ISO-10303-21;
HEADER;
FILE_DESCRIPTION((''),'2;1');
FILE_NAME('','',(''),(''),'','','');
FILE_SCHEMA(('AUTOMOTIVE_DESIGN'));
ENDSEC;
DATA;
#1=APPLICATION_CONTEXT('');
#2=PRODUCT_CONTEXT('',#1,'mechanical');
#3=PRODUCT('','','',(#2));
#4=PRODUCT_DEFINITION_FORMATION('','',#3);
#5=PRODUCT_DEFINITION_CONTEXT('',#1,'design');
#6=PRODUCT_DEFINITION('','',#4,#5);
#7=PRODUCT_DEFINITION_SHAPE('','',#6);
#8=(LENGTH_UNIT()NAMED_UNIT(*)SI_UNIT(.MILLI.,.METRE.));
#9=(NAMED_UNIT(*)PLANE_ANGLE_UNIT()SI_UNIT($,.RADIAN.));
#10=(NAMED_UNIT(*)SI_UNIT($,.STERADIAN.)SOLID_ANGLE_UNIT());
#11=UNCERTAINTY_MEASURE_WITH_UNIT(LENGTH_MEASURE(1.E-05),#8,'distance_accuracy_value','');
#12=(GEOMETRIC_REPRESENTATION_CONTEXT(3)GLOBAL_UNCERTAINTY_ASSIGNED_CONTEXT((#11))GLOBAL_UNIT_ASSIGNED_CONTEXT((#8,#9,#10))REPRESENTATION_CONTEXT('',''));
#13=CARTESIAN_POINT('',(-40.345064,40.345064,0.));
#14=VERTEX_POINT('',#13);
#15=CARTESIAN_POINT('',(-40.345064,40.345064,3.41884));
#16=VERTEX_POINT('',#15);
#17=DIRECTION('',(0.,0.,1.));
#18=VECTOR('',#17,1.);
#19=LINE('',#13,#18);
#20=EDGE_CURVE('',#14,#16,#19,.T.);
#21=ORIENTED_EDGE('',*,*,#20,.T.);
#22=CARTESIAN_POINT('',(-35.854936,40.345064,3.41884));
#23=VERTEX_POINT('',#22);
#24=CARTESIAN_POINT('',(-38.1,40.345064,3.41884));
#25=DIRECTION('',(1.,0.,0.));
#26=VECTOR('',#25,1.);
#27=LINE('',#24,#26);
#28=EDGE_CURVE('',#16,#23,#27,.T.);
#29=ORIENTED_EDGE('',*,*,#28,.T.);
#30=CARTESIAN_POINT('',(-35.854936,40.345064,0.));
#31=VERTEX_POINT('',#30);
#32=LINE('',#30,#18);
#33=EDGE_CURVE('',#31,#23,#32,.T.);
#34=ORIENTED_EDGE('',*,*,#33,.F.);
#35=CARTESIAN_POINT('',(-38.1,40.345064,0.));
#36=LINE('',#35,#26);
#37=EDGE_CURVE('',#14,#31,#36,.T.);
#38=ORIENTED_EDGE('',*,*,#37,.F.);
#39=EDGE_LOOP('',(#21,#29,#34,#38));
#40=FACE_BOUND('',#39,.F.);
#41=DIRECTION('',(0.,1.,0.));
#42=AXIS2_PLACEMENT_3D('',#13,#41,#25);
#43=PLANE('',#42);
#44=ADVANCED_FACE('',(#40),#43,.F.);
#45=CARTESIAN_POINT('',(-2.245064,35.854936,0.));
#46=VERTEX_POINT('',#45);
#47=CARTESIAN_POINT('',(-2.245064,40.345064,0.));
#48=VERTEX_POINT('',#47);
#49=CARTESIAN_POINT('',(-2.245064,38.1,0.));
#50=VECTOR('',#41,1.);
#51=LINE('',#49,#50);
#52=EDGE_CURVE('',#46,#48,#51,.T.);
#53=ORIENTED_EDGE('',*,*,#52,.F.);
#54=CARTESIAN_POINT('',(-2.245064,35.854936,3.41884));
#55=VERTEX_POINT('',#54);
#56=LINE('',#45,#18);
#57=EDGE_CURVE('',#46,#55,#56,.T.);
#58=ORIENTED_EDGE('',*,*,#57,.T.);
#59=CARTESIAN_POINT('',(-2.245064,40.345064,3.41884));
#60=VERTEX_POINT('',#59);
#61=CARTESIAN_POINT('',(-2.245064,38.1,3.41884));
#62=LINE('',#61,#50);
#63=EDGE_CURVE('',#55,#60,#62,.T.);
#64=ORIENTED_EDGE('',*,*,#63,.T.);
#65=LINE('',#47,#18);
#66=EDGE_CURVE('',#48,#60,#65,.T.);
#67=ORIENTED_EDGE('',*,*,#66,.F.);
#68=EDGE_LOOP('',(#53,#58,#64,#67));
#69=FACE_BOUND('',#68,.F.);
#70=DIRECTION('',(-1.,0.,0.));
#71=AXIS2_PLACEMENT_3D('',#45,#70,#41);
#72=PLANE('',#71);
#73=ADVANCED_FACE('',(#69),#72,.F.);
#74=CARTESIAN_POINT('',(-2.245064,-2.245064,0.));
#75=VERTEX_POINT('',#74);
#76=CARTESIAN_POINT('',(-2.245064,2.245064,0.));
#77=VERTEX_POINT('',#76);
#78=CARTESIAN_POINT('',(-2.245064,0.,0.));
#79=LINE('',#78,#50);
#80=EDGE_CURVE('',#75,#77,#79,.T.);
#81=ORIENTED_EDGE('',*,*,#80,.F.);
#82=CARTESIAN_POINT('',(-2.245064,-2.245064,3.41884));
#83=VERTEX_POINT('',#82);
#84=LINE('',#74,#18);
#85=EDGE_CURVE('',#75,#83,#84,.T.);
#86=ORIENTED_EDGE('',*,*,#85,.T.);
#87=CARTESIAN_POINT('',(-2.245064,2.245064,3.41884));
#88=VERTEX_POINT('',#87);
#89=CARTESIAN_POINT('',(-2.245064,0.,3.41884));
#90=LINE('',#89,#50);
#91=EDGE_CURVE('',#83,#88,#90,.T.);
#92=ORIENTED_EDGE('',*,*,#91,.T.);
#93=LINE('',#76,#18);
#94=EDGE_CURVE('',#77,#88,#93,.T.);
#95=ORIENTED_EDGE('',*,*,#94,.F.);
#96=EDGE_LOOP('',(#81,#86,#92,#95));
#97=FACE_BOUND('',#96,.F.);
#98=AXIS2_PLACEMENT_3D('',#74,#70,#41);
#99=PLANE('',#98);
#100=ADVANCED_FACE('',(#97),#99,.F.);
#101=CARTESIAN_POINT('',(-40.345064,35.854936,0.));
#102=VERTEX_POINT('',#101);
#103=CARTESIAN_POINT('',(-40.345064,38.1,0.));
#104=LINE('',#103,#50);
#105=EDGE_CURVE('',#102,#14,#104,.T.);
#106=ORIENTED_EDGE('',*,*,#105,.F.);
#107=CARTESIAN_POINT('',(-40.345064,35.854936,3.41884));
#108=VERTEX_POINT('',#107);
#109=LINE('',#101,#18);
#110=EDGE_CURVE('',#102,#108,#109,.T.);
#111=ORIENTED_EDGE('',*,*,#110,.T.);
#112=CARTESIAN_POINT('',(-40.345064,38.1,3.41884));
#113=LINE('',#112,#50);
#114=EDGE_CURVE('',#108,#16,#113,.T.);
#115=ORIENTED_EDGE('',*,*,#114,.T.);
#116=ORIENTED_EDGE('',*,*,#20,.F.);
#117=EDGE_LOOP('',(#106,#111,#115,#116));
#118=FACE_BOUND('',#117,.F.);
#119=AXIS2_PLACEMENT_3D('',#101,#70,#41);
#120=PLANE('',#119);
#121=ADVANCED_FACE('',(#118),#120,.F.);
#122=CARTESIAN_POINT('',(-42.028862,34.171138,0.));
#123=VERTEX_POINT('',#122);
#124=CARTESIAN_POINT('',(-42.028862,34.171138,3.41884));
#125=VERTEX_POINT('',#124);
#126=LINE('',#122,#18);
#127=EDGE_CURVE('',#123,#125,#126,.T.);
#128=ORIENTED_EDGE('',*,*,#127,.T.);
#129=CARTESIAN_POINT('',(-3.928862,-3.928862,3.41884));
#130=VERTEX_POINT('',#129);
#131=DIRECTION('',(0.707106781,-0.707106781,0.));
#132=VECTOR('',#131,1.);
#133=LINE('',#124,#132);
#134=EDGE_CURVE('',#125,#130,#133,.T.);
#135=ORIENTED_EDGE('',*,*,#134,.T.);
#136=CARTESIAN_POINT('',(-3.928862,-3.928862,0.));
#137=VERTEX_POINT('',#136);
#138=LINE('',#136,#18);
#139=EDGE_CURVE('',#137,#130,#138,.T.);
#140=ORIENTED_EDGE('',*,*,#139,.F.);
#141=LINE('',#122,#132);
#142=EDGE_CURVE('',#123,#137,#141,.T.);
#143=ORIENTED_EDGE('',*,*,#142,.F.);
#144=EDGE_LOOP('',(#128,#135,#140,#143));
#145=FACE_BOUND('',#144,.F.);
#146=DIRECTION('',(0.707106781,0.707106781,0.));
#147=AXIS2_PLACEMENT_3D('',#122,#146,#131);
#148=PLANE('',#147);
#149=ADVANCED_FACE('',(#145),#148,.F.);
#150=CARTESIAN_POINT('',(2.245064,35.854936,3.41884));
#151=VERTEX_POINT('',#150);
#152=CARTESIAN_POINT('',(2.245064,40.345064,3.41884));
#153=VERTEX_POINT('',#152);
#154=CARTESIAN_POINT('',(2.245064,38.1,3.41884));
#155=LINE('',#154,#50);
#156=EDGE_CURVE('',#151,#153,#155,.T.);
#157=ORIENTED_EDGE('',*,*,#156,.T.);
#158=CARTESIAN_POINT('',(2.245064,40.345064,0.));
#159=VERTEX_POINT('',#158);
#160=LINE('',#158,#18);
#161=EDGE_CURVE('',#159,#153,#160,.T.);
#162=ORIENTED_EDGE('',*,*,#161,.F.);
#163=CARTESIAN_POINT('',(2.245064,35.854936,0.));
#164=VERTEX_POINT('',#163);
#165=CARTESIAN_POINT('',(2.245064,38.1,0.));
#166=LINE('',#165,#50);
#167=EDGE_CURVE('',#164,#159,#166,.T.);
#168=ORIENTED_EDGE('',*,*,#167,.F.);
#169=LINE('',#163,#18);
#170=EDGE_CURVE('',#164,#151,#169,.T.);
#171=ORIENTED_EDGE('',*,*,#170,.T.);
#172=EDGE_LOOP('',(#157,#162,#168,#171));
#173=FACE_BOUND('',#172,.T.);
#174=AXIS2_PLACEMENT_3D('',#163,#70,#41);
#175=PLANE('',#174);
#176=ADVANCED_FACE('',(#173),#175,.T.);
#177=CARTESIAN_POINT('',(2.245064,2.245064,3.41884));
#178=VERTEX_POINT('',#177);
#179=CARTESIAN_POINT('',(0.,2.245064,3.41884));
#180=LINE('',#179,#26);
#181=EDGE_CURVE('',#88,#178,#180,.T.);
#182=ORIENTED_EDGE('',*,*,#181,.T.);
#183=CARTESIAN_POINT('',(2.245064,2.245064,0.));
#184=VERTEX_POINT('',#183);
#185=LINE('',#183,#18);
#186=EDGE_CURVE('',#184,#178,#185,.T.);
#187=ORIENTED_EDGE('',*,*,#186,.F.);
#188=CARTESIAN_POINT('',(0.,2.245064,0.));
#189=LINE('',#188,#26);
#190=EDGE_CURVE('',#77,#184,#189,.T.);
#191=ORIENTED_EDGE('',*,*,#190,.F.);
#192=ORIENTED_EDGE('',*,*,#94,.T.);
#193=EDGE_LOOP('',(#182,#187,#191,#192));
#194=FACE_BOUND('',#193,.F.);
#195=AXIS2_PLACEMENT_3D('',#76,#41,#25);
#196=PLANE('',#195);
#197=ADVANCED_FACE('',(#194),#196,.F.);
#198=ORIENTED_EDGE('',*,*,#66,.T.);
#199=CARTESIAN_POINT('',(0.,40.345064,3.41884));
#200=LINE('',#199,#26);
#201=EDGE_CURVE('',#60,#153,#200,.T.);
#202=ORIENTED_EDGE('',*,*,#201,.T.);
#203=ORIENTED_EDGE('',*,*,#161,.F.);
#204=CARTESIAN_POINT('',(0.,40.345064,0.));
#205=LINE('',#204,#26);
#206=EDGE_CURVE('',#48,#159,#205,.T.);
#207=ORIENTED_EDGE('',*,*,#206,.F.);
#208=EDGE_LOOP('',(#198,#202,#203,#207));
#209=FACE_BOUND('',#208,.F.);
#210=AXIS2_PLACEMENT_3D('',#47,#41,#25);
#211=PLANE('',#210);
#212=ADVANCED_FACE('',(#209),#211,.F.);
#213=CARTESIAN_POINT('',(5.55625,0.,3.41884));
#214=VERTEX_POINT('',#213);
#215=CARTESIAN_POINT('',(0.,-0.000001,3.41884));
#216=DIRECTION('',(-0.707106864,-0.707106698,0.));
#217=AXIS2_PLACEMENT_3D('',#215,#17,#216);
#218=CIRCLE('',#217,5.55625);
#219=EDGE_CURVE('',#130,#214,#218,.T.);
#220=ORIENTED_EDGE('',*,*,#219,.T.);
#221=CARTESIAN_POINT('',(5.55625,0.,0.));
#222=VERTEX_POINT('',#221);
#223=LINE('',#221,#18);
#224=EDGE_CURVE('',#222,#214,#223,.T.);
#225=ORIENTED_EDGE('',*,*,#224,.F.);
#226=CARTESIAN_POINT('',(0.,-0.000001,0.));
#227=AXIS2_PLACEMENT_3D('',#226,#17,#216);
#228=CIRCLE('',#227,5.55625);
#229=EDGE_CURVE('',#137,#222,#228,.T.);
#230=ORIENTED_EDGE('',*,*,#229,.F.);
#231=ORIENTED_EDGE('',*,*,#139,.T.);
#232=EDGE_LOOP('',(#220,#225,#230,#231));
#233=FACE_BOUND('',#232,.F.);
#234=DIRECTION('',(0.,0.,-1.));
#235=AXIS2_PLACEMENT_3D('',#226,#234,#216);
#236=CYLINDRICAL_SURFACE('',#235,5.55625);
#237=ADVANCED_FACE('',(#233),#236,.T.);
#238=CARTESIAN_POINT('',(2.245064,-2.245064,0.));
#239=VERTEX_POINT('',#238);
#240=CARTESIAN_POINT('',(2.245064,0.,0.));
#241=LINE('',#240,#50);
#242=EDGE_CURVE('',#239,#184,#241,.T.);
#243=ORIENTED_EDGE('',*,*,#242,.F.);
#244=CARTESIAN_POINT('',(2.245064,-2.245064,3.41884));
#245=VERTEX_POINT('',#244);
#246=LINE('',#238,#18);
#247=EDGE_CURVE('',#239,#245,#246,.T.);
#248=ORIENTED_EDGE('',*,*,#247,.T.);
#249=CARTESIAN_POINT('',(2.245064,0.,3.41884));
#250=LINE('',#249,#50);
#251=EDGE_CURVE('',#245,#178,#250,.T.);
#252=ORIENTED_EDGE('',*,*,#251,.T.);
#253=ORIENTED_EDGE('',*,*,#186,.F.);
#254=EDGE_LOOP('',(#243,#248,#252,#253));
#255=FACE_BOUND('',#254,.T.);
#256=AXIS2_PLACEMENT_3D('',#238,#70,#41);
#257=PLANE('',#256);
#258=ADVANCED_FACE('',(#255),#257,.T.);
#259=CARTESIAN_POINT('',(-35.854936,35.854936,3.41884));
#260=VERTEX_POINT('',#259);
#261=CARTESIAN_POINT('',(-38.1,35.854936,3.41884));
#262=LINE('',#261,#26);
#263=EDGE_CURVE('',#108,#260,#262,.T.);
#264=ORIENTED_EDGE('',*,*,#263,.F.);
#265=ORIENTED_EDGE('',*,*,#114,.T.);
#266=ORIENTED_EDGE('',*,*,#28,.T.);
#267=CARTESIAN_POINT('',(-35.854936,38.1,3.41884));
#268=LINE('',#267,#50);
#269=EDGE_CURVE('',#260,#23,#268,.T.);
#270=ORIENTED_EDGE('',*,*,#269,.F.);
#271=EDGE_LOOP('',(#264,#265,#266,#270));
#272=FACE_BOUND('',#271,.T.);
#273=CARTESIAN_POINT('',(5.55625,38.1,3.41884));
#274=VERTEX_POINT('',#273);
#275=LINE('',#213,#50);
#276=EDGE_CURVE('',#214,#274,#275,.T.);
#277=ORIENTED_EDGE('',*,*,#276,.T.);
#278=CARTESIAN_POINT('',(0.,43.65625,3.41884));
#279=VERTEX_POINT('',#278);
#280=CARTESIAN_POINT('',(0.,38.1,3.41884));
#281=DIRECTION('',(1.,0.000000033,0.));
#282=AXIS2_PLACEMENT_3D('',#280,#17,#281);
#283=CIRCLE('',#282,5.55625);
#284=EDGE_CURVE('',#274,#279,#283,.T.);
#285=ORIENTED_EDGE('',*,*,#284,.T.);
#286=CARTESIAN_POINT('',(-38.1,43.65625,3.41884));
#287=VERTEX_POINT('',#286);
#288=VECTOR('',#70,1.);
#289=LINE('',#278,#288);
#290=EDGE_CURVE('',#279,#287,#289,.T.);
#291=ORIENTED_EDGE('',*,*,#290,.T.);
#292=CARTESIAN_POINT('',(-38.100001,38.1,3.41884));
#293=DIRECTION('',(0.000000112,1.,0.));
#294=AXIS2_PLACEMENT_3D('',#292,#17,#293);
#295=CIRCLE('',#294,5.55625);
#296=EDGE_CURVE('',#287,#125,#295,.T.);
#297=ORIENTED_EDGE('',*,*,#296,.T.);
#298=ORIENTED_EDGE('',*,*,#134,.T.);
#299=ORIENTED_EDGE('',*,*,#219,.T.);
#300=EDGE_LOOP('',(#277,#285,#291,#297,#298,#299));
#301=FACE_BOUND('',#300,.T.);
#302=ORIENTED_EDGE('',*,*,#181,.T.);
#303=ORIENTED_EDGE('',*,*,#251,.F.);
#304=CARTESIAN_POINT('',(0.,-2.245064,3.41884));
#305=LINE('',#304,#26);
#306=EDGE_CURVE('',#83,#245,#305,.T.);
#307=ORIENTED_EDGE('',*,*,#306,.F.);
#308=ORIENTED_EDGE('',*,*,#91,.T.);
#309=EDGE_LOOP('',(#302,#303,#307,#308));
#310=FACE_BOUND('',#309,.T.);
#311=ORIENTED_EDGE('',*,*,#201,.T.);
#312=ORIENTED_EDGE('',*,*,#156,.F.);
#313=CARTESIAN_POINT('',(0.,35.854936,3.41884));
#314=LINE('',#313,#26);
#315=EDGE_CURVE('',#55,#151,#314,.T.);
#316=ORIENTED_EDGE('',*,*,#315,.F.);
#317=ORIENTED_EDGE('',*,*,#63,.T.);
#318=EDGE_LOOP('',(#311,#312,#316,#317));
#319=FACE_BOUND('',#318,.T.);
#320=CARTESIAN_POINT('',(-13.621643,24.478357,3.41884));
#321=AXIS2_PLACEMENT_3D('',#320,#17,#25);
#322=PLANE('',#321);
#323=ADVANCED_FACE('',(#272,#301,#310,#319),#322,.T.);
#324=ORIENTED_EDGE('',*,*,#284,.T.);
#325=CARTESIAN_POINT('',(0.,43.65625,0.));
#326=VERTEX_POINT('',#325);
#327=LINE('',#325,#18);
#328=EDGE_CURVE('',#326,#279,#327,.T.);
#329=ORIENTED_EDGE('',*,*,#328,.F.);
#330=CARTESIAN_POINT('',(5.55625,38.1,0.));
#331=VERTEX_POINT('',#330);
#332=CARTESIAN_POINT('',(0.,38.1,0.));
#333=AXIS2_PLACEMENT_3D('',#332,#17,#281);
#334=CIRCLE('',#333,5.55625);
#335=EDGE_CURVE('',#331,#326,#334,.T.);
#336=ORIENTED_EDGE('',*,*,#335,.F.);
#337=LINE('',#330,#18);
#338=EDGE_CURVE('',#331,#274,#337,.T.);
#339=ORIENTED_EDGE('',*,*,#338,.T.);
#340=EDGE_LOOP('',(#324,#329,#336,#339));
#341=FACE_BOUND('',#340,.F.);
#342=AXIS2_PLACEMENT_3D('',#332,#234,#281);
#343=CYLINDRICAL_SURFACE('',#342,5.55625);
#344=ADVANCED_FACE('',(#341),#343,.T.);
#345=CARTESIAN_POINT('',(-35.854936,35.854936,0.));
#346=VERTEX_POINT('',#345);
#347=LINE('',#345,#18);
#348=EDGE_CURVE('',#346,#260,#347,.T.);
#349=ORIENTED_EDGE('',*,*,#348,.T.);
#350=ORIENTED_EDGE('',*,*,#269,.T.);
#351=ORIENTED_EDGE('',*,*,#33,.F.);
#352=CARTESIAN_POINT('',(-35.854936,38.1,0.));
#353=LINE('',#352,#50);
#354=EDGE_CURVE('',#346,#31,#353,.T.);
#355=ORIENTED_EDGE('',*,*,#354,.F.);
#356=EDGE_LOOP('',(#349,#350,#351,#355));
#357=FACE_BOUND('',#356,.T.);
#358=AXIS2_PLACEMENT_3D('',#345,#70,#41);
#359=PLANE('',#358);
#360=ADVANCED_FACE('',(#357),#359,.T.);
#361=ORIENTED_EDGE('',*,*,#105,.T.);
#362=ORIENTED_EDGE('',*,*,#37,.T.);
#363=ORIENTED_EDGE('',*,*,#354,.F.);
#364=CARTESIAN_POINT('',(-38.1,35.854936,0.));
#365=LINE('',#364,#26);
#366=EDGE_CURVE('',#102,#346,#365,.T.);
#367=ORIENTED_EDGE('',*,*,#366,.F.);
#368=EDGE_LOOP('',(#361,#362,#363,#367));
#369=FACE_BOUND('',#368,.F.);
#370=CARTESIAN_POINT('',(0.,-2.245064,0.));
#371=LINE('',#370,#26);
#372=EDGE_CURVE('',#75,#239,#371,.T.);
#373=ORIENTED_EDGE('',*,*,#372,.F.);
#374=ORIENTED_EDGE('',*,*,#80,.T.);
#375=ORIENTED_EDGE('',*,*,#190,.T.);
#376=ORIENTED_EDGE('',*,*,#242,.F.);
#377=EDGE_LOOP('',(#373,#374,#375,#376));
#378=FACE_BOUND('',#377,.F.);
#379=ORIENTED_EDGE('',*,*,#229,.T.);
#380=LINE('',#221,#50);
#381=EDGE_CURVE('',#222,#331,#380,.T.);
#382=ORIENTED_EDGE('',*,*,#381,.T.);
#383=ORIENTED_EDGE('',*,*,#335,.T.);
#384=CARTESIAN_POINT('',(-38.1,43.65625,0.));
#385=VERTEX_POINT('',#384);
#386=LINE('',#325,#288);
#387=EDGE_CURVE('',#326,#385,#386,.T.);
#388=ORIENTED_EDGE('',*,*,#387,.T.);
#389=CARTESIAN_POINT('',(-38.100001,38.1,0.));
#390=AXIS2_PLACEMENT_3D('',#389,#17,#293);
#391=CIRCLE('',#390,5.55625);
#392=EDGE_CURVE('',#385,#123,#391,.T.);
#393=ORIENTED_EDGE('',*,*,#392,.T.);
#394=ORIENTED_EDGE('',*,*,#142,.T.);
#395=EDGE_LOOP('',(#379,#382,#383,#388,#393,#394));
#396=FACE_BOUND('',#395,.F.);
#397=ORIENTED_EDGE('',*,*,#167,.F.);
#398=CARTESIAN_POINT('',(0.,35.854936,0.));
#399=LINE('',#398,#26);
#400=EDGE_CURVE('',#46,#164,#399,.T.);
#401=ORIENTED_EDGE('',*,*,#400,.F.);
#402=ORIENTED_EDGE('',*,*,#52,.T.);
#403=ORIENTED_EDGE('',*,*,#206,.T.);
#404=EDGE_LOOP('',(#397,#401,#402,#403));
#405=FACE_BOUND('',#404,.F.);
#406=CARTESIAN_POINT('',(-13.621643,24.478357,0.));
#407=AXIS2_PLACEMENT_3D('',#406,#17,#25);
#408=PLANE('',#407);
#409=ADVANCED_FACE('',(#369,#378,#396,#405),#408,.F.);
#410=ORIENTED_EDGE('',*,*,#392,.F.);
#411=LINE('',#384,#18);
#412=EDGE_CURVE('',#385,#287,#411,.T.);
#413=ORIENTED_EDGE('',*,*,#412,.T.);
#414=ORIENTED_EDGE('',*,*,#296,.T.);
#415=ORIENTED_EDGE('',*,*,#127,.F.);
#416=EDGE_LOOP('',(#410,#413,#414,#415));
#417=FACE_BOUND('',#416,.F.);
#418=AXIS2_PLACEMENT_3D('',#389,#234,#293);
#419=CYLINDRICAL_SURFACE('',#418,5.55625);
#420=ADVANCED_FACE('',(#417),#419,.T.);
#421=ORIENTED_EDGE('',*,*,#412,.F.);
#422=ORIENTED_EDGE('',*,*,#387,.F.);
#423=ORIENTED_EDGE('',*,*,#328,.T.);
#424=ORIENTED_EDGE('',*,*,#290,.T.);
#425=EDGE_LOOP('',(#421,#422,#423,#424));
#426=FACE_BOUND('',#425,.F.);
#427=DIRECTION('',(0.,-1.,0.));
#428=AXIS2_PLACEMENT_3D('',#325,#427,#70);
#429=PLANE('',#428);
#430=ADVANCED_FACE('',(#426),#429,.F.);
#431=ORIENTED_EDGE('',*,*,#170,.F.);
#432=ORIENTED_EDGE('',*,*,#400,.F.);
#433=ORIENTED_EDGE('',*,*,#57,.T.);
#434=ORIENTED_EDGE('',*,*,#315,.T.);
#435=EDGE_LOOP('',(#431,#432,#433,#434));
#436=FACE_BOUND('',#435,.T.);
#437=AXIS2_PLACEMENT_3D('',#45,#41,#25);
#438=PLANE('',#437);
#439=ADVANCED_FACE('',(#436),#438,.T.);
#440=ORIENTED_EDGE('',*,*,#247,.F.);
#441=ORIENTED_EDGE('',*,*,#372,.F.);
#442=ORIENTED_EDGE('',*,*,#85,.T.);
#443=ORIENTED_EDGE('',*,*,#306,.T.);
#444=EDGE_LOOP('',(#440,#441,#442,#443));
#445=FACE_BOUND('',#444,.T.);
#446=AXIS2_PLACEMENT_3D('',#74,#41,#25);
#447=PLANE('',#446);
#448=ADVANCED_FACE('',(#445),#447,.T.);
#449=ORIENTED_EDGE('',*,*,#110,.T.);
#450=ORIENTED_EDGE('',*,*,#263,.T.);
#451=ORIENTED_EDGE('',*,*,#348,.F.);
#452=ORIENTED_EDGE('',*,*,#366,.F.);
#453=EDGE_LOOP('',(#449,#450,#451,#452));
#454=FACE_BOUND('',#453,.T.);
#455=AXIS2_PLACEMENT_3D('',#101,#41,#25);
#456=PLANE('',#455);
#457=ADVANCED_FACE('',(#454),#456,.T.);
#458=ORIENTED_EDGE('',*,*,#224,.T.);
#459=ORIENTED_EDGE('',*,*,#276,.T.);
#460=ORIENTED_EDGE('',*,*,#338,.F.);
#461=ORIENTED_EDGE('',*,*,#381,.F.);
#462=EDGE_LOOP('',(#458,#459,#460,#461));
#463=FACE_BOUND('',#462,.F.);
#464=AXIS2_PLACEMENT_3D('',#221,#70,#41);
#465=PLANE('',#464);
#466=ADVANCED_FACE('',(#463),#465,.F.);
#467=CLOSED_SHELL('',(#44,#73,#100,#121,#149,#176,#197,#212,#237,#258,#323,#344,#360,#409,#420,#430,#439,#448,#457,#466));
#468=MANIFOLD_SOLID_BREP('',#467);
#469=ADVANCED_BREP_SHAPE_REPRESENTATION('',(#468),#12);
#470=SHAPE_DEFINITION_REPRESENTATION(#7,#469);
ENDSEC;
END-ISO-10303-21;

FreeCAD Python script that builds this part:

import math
import FreeCAD as App
import Part
import Sketcher
Q = App.Units.Quantity

doc = App.newDocument("Part")
body = doc.addObject("PartDesign::Body", "Body")

# Sketch on XY plane
sketch1 = body.newObject("Sketcher::SketchObject", "Sketch")
sketch1.AttachmentSupport = (doc.getObject("XY_Plane"), [""])
sketch1.MapMode = "FlatFace"
sketch1.addGeometry([
    Part.LineSegment(App.Vector(5.6, 0, 0), App.Vector(5.6, 38.1, 0)),  # 0
    Part.ArcOfCircle(Part.Circle(App.Vector(0, 38.1, 0), App.Vector(0, 0, 1), 5.6), math.radians(0), math.radians(90)),  # 1
    Part.LineSegment(App.Vector(0, 43.7, 0), App.Vector(-38.1, 43.7, 0)),  # 2
    Part.ArcOfCircle(Part.Circle(App.Vector(-38.1, 38.1, 0), App.Vector(0, 0, 1), 5.6), math.radians(90), math.radians(225)),  # 3
    Part.LineSegment(App.Vector(-42, 34.2, 0), App.Vector(-3.9, -3.9, 0)),  # 4
    Part.ArcOfCircle(Part.Circle(App.Vector(0, 0, 0), App.Vector(0, 0, 1), 5.6), math.radians(-135), math.radians(0)),  # 5
    Part.LineSegment(App.Vector(2.2, -2.2, 0), App.Vector(-2.2, -2.2, 0)),  # 6
    Part.LineSegment(App.Vector(-2.2, -2.2, 0), App.Vector(-2.2, 2.2, 0)),  # 7
    Part.LineSegment(App.Vector(-2.2, 2.2, 0), App.Vector(2.2, 2.2, 0)),  # 8
    Part.LineSegment(App.Vector(2.2, 2.2, 0), App.Vector(2.2, -2.2, 0)),  # 9
    Part.LineSegment(App.Vector(-35.9, 35.9, 0), App.Vector(-40.3, 35.9, 0)),  # 10
    Part.LineSegment(App.Vector(-40.3, 35.9, 0), App.Vector(-40.3, 40.3, 0)),  # 11
    Part.LineSegment(App.Vector(-40.3, 40.3, 0), App.Vector(-35.9, 40.3, 0)),  # 12
    Part.LineSegment(App.Vector(-35.9, 40.3, 0), App.Vector(-35.9, 35.9, 0)),  # 13
    Part.LineSegment(App.Vector(2.2, 35.9, 0), App.Vector(-2.2, 35.9, 0)),  # 14
    Part.LineSegment(App.Vector(-2.2, 35.9, 0), App.Vector(-2.2, 40.3, 0)),  # 15
    Part.LineSegment(App.Vector(-2.2, 40.3, 0), App.Vector(2.2, 40.3, 0)),  # 16
    Part.LineSegment(App.Vector(2.2, 40.3, 0), App.Vector(2.2, 35.9, 0)),  # 17
], False)
sketch1.addConstraint([
    Sketcher.Constraint("Tangent", 0, 2, 1, 1),
    Sketcher.Constraint("Tangent", 1, 2, 2, 1),
    Sketcher.Constraint("Tangent", 2, 2, 3, 1),
    Sketcher.Constraint("Tangent", 3, 2, 4, 1),
    Sketcher.Constraint("Tangent", 4, 2, 5, 1),
    Sketcher.Constraint("Tangent", 5, 2, 0, 1),
    Sketcher.Constraint("Coincident", 6, 2, 7, 1),
    Sketcher.Constraint("Coincident", 7, 2, 8, 1),
    Sketcher.Constraint("Coincident", 8, 2, 9, 1),
    Sketcher.Constraint("Coincident", 9, 2, 6, 1),
    Sketcher.Constraint("Coincident", 10, 2, 11, 1),
    Sketcher.Constraint("Coincident", 11, 2, 12, 1),
    Sketcher.Constraint("Coincident", 12, 2, 13, 1),
    Sketcher.Constraint("Coincident", 13, 2, 10, 1),
    Sketcher.Constraint("Coincident", 14, 2, 15, 1),
    Sketcher.Constraint("Coincident", 15, 2, 16, 1),
    Sketcher.Constraint("Coincident", 16, 2, 17, 1),
    Sketcher.Constraint("Coincident", 17, 2, 14, 1),
    Sketcher.Constraint("Vertical", 0),
    Sketcher.Constraint("Horizontal", 2),
    Sketcher.Constraint("Horizontal", 6),
    Sketcher.Constraint("Vertical", 7),
    Sketcher.Constraint("Horizontal", 8),
    Sketcher.Constraint("Vertical", 9),
    Sketcher.Constraint("Horizontal", 10),
    Sketcher.Constraint("Vertical", 11),
    Sketcher.Constraint("Horizontal", 12),
    Sketcher.Constraint("Vertical", 13),
    Sketcher.Constraint("Horizontal", 14),
    Sketcher.Constraint("Vertical", 15),
    Sketcher.Constraint("Horizontal", 16),
    Sketcher.Constraint("Vertical", 17),
    Sketcher.Constraint("Coincident", 5, 3, -1, 1),
    Sketcher.Constraint("Equal", 1, 3),
    Sketcher.Constraint("Equal", 3, 5),
    Sketcher.Constraint("Symmetric", 6, 2, 8, 2, -1, 1),
    Sketcher.Constraint("Horizontal", 13, 2, 14, 2),
    Sketcher.Constraint("Horizontal", 12, 2, 15, 2),
    Sketcher.Constraint("Vertical", 7, 2, 14, 2),
    Sketcher.Constraint("Vertical", 9, 2, 16, 2),
    Sketcher.Constraint("Equal", 8, 10),
    Sketcher.Constraint("Equal", 2, 0),
    Sketcher.Constraint("Equal", 16, 7),
    Sketcher.Constraint("Equal", 9, 11),
    Sketcher.Constraint("DistanceX", 2, 2, 2, 1, Q("1.5 in")),
    Sketcher.Constraint("Radius", 1, Q("0.21875 in")),
    Sketcher.Constraint("DistanceX", 6, 2, 6, 1, 4.490128),
    Sketcher.Constraint("DistanceX", 10, 2, -1, 1, 40.345064),
    Sketcher.Constraint("DistanceY", -1, 1, 10, 2, 35.854936),
])
pad1 = body.newObject("PartDesign::Pad", "Pad")
pad1.Profile = sketch1
pad1.Length = Q("0.1346 in")

doc.recompute()
